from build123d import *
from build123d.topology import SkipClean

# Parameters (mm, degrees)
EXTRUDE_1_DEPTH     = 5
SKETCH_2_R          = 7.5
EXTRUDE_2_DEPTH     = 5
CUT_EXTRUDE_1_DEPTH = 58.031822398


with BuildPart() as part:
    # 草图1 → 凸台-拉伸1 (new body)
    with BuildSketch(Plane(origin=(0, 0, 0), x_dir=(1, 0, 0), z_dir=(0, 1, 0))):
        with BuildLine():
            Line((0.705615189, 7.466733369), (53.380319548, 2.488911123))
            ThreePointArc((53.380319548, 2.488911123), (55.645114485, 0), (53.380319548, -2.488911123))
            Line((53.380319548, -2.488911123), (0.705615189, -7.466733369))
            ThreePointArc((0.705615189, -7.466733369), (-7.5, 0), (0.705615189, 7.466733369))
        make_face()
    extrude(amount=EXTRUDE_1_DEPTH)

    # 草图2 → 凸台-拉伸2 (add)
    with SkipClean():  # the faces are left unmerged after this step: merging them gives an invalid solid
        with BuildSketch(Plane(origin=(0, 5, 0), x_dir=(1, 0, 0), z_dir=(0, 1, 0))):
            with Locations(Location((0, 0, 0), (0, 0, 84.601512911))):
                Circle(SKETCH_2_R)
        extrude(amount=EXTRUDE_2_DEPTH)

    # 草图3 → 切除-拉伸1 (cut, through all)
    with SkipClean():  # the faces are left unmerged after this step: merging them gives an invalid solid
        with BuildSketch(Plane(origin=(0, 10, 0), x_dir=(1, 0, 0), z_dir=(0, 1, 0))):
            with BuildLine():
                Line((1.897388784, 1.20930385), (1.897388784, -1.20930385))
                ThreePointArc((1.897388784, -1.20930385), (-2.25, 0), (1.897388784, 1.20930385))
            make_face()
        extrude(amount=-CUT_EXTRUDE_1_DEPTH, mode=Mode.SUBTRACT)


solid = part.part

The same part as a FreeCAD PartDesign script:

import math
import FreeCAD as App
import Part
import Sketcher
Q = App.Units.Quantity

doc = App.newDocument("Part")
body = doc.addObject("PartDesign::Body", "Body")

# Sketch on XZ plane
sketch1 = body.newObject("Sketcher::SketchObject", "Sketch")
sketch1.AttachmentSupport = (doc.getObject("XZ_Plane"), [""])
sketch1.MapMode = "FlatFace"
sketch1.addGeometry(Part.LineSegment(App.Vector(53.38032, -2.488911, 0), App.Vector(0.705615, -7.466733, 0)), False)
sketch1.addGeometry(Part.ArcOfCircle(Part.Circle(App.Vector(0, 0, 0), App.Vector(0, 0, 1), 7.5), math.radians(84.601513), math.radians(275.398487)), False)
sketch1.addGeometry(Part.LineSegment(App.Vector(0.705615, 7.466733, 0), App.Vector(53.38032, 2.488911, 0)), False)
sketch1.addGeometry(Part.ArcOfCircle(Part.Circle(App.Vector(53.145114, 0, 0), App.Vector(0, 0, 1), 2.5), math.radians(-84.601513), math.radians(84.601513)), False)
sketch1.addConstraint(Sketcher.Constraint("Tangent", 0, 2, 1, 2))
sketch1.addConstraint(Sketcher.Constraint("Tangent", 1, 1, 2, 1))
sketch1.addConstraint(Sketcher.Constraint("Tangent", 2, 2, 3, 2))
sketch1.addConstraint(Sketcher.Constraint("Tangent", 3, 1, 0, 1))
sketch1.addConstraint(Sketcher.Constraint("Coincident", 1, 3, -1, 1))
sketch1.addConstraint(Sketcher.Constraint("PointOnObject", 3, 3, -1))
sketch1.addConstraint(Sketcher.Constraint("Radius", 1, Q("7.5 mm")))
sketch1.addConstraint(Sketcher.Constraint("Radius", 3, Q("2.5 mm")))
sketch1.addConstraint(Sketcher.Constraint("DistanceX", 0, 2, 3, 3, Q("52.439499 mm")))
pad1 = body.newObject("PartDesign::Pad", "Pad")
pad1.Profile = sketch1
pad1.Length = 5
pad1.Reversed = True

# Sketch on XZ plane
sketch2 = body.newObject("Sketcher::SketchObject", "Sketch001")
sketch2.AttachmentSupport = (doc.getObject("XZ_Plane"), [""])
sketch2.MapMode = "FlatFace"
sketch2.AttachmentOffset = App.Placement(App.Vector(0, 0, -5), App.Rotation())
sketch2.addGeometry(Part.Circle(App.Vector(0, 0, 0), App.Vector(0, 0, 1), 7.5), False)
sketch2.addConstraint(Sketcher.Constraint("Coincident", 0, 3, -1, 1))
sketch2.addConstraint(Sketcher.Constraint("Diameter", 0, Q("15 mm")))
pad2 = body.newObject("PartDesign::Pad", "Pad001")
pad2.Profile = sketch2
pad2.Length = 5
pad2.Reversed = True

# Sketch on XZ plane
sketch3 = body.newObject("Sketcher::SketchObject", "Sketch002")
sketch3.AttachmentSupport = (doc.getObject("XZ_Plane"), [""])
sketch3.MapMode = "FlatFace"
sketch3.AttachmentOffset = App.Placement(App.Vector(0, 0, -10), App.Rotation())
sketch3.addGeometry(Part.LineSegment(App.Vector(1.897389, 1.209304, 0), App.Vector(1.897389, -1.209304, 0)), False)
sketch3.addGeometry(Part.ArcOfCircle(Part.Circle(App.Vector(0, 0, 0), App.Vector(0, 0, 1), 2.25), math.radians(32.511466), math.radians(327.488534)), False)
sketch3.addConstraint(Sketcher.Constraint("Coincident", 0, 1, 1, 1))
sketch3.addConstraint(Sketcher.Constraint("Coincident", 1, 2, 0, 2))
sketch3.addConstraint(Sketcher.Constraint("Vertical", 0))
sketch3.addConstraint(Sketcher.Constraint("Coincident", 1, 3, -1, 1))
sketch3.addConstraint(Sketcher.Constraint("Radius", 1, Q("2.25 mm")))
sketch3.addConstraint(Sketcher.Constraint("DistanceY", 0, 2, 0, 1, Q("2.418608 mm")))
pocket1 = body.newObject("PartDesign::Pocket", "Pocket")
pocket1.Profile = sketch3
pocket1.Type = "ThroughAll"
pocket1.Reversed = True

doc.recompute()
